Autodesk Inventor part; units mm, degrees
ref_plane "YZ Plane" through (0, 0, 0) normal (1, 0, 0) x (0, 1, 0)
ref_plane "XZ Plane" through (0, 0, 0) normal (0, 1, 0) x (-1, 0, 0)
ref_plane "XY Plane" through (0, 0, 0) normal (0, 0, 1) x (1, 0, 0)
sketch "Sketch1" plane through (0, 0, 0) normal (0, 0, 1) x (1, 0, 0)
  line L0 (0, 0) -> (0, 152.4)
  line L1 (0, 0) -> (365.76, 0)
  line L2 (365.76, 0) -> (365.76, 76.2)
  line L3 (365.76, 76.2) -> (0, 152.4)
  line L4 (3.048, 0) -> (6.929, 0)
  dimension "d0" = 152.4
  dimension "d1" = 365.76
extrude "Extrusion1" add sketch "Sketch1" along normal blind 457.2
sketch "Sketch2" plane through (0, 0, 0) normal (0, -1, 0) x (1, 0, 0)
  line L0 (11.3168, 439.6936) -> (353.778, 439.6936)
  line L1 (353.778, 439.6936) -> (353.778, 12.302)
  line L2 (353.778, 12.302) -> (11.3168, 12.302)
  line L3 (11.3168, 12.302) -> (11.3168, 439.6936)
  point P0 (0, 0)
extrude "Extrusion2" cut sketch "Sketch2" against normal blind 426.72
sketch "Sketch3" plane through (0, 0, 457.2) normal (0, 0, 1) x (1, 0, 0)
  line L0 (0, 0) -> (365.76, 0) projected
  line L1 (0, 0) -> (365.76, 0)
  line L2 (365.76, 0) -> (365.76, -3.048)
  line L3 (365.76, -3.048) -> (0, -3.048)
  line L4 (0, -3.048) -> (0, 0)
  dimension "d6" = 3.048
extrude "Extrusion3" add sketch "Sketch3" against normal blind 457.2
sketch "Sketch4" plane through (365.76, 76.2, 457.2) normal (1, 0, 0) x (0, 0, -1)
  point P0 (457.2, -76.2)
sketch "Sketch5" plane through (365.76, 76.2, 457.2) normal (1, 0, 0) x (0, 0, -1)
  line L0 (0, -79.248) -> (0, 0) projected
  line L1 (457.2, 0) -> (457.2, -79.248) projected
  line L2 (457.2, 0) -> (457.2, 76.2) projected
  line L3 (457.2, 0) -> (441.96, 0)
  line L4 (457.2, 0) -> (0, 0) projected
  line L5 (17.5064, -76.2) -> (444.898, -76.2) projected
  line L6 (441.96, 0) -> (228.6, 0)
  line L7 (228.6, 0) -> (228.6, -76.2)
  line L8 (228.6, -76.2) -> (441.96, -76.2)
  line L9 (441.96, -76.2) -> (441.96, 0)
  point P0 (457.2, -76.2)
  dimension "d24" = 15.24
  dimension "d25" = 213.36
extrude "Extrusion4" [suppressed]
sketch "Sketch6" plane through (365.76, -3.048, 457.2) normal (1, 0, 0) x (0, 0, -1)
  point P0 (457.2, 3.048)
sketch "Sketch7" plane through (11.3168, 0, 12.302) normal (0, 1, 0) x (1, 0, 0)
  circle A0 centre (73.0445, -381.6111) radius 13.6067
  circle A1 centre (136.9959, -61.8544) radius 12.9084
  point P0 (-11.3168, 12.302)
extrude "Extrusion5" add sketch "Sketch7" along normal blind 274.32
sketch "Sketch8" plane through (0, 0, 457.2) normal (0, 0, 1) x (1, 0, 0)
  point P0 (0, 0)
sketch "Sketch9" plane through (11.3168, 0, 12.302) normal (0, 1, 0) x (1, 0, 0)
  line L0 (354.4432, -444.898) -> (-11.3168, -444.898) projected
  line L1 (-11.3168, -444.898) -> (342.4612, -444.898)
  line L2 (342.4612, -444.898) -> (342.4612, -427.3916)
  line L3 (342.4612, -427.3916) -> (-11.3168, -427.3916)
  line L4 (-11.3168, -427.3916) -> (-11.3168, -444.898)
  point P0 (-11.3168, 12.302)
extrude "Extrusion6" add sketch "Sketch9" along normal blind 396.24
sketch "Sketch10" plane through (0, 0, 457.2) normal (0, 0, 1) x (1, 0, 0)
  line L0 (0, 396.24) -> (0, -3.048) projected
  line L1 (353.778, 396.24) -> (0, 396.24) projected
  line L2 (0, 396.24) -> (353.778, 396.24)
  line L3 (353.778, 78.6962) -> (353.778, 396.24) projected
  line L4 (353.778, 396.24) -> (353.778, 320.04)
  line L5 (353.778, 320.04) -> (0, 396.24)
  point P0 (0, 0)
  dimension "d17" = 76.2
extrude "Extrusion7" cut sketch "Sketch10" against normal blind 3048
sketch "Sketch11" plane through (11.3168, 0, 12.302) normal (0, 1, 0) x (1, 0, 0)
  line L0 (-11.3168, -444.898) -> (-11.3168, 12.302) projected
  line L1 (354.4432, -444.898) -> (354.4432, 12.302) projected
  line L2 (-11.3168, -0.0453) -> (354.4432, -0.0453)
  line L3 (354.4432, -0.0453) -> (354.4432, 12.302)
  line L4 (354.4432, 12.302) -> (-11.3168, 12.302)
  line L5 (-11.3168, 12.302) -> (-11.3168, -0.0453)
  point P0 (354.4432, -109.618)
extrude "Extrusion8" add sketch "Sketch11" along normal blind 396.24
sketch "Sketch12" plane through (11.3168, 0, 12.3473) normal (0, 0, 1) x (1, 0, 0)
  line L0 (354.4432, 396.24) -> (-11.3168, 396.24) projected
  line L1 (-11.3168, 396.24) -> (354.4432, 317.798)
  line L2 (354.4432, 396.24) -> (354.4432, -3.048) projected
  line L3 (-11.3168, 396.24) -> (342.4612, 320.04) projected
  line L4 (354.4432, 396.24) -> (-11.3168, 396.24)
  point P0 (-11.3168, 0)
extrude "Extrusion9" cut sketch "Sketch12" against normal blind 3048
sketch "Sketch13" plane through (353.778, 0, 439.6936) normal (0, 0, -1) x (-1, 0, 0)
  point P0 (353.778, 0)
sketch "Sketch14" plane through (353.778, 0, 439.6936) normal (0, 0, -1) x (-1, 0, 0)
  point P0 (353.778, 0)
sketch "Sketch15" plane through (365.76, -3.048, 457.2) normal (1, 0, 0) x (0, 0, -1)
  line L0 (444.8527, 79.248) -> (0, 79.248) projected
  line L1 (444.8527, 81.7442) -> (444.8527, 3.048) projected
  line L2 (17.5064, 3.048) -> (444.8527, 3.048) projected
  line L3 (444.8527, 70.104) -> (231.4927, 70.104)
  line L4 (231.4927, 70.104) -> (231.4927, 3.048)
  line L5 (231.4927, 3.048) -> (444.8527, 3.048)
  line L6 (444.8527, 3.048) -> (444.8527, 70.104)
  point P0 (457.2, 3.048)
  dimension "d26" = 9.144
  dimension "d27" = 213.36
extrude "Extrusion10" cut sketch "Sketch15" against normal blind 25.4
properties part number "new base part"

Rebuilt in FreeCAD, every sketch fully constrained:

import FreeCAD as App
import Part
import Sketcher

V = App.Vector
Q = App.Units.Quantity


def add_polygon(sketch, points):
    """Adds a closed chain of lines whose ends are joined by coincident constraints."""
    first, n = sketch.GeometryCount, len(points)
    for a, b in zip(points, points[1:] + points[:1]):
        sketch.addGeometry(Part.LineSegment(App.Vector(*a, 0), App.Vector(*b, 0)), False)
    for i in range(n):
        sketch.addConstraint(Sketcher.Constraint("Coincident", first + i, 2, first + (i + 1) % n, 1))

doc = App.newDocument("Part")
body = doc.addObject("PartDesign::Body", "Body")

# Sketch on XY plane
sketch1 = body.newObject("Sketcher::SketchObject", "Sketch")
sketch1.AttachmentSupport = (doc.getObject("XY_Plane"), [""])
sketch1.MapMode = "FlatFace"
add_polygon(sketch1, [(0, 152), (0, 0), (366, 0), (366, 76)])  # lines 0-3
sketch1.addConstraint([
    Sketcher.Constraint("Vertical", 0),
    Sketcher.Constraint("Horizontal", 1),
    Sketcher.Constraint("Vertical", 2),
    Sketcher.Constraint("Coincident", 0, 2, -1, 1),
    Sketcher.Constraint("DistanceY", 0, 2, 0, 1, Q("6 in")),
    Sketcher.Constraint("DistanceX", 1, 1, 1, 2, Q("14.4 in")),
    Sketcher.Constraint("DistanceY", 2, 1, 2, 2, Q("3 in")),
])
pad1 = body.newObject("PartDesign::Pad", "Pad")
pad1.Profile = sketch1
pad1.Length = Q("18 in")

# Sketch on XZ plane
sketch2 = body.newObject("Sketcher::SketchObject", "Sketch001")
sketch2.AttachmentSupport = (doc.getObject("XZ_Plane"), [""])
sketch2.MapMode = "FlatFace"
add_polygon(sketch2, [(354, 440), (11, 440), (11, 12), (354, 12)])  # lines 0-3
sketch2.addConstraint([
    Sketcher.Constraint("Horizontal", 0),
    Sketcher.Constraint("Vertical", 1),
    Sketcher.Constraint("Horizontal", 2),
    Sketcher.Constraint("Vertical", 3),
    Sketcher.Constraint("DistanceX", 0, 2, 0, 1, Q("342.4612 mm")),
    Sketcher.Constraint("DistanceY", 1, 2, 1, 1, Q("427.3916 mm")),
    Sketcher.Constraint("DistanceX", -1, 1, 0, 2, Q("11.3168 mm")),
    Sketcher.Constraint("DistanceY", -1, 1, 0, 2, Q("439.6936 mm")),
])
pocket1 = body.newObject("PartDesign::Pocket", "Pocket")
pocket1.Profile = sketch2
pocket1.Length = Q("16.8 in")

# Sketch on XY plane
sketch3 = body.newObject("Sketcher::SketchObject", "Sketch002")
sketch3.AttachmentSupport = (doc.getObject("XY_Plane"), [""])
sketch3.MapMode = "FlatFace"
sketch3.AttachmentOffset = App.Placement(V(0, 0, 18 * 25.4), App.Rotation())
add_polygon(sketch3, [(365.8, 0), (0, 0), (0, -3), (365.8, -3)])  # lines 0-3
sketch3.addConstraint([
    Sketcher.Constraint("Horizontal", 0),
    Sketcher.Constraint("Vertical", 1),
    Sketcher.Constraint("Horizontal", 2),
    Sketcher.Constraint("Vertical", 3),
    Sketcher.Constraint("Coincident", 0, 2, -1, 1),
    Sketcher.Constraint("DistanceY", 1, 2, 1, 1, Q("0.12 in")),
    Sketcher.Constraint("DistanceX", 0, 2, 0, 1, Q("14.4 in")),
])
pad2 = body.newObject("PartDesign::Pad", "Pad001")
pad2.Profile = sketch3
pad2.Length = Q("18 in")
pad2.Reversed = True

# Sketch on XZ plane
sketch4 = body.newObject("Sketcher::SketchObject", "Sketch003")
sketch4.AttachmentSupport = (doc.getObject("XZ_Plane"), [""])
sketch4.MapMode = "FlatFace"
sketch4.addGeometry([
    Part.Circle(V(84, 394, 0), V(0, 0, 1), 14),
    Part.Circle(V(148, 74, 0), V(0, 0, 1), 13),
], False)
sketch4.addConstraint([
    Sketcher.Constraint("Diameter", 0, Q("1.0714 in")),
    Sketcher.Constraint("Diameter", 1, Q("1.0164 in")),
    Sketcher.Constraint("DistanceX", -1, 1, 0, 3, Q("3.3213 in")),
    Sketcher.Constraint("DistanceY", -1, 1, 0, 3, Q("15.5084 in")),
    Sketcher.Constraint("DistanceX", -1, 1, 1, 3, Q("148.3127 mm")),
    Sketcher.Constraint("DistanceY", -1, 1, 1, 3, Q("74.1564 mm")),
])
pad3 = body.newObject("PartDesign::Pad", "Pad002")
pad3.Profile = sketch4
pad3.Length = Q("10.8 in")
pad3.Reversed = True

# Sketch on XZ plane
sketch5 = body.newObject("Sketcher::SketchObject", "Sketch004")
sketch5.AttachmentSupport = (doc.getObject("XZ_Plane"), [""])
sketch5.MapMode = "FlatFace"
add_polygon(sketch5, [(0, 457), (354, 457), (354, 440), (0, 440)])  # lines 0-3
sketch5.addConstraint([
    Sketcher.Constraint("Horizontal", 0),
    Sketcher.Constraint("Vertical", 1),
    Sketcher.Constraint("Horizontal", 2),
    Sketcher.Constraint("Vertical", 3),
    Sketcher.Constraint("PointOnObject", 2, 2, -2),
    Sketcher.Constraint("DistanceY", -1, 1, 0, 2, Q("18 in")),
    Sketcher.Constraint("DistanceX", 0, 1, 0, 2, Q("353.778 mm")),
    Sketcher.Constraint("DistanceY", 1, 2, 1, 1, Q("17.5064 mm")),
])
pad4 = body.newObject("PartDesign::Pad", "Pad003")
pad4.Profile = sketch5
pad4.Length = Q("15.6 in")
pad4.Reversed = True

# Sketch on XY plane
sketch6 = body.newObject("Sketcher::SketchObject", "Sketch005")
sketch6.AttachmentSupport = (doc.getObject("XY_Plane"), [""])
sketch6.MapMode = "FlatFace"
sketch6.AttachmentOffset = App.Placement(V(0, 0, 18 * 25.4), App.Rotation())
add_polygon(sketch6, [(354, 320), (354, 396), (0, 396)])  # lines 0-2
sketch6.addConstraint([
    Sketcher.Constraint("Vertical", 0),
    Sketcher.Constraint("Horizontal", 1),
    Sketcher.Constraint("PointOnObject", 1, 2, -2),
    Sketcher.Constraint("DistanceY", 0, 1, 0, 2, Q("3 in")),
    Sketcher.Constraint("DistanceY", -1, 1, 0, 2, Q("15.6 in")),
    Sketcher.Constraint("Distance", 2, Q("14.2477 in")),
])
pocket2 = body.newObject("PartDesign::Pocket", "Pocket001")
pocket2.Profile = sketch6
pocket2.Length = Q("120 in")

# Sketch on XZ plane
sketch7 = body.newObject("Sketcher::SketchObject", "Sketch006")
sketch7.AttachmentSupport = (doc.getObject("XZ_Plane"), [""])
sketch7.MapMode = "FlatFace"
add_polygon(sketch7, [(0, 0), (0, 12), (366, 12), (366, 0)])  # lines 0-3
sketch7.addConstraint([
    Sketcher.Constraint("Vertical", 0),
    Sketcher.Constraint("Horizontal", 1),
    Sketcher.Constraint("Vertical", 2),
    Sketcher.Constraint("Horizontal", 3),
    Sketcher.Constraint("Coincident", 3, 2, -1, 1),
    Sketcher.Constraint("DistanceX", 1, 1, 1, 2, Q("14.4 in")),
    Sketcher.Constraint("DistanceY", 0, 1, 0, 2, Q("12.3473 mm")),
])
pad5 = body.newObject("PartDesign::Pad", "Pad004")
pad5.Profile = sketch7
pad5.Length = Q("15.6 in")
pad5.Reversed = True

# Sketch on XY plane
sketch8 = body.newObject("Sketcher::SketchObject", "Sketch007")
sketch8.AttachmentSupport = (doc.getObject("XY_Plane"), [""])
sketch8.MapMode = "FlatFace"
sketch8.AttachmentOffset = App.Placement(V(0, 0, 12.3473), App.Rotation())
add_polygon(sketch8, [(366, 318), (366, 396), (0, 396)])  # lines 0-2
sketch8.addConstraint([
    Sketcher.Constraint("Vertical", 0),
    Sketcher.Constraint("Horizontal", 1),
    Sketcher.Constraint("PointOnObject", 1, 2, -2),
    Sketcher.Constraint("DistanceX", 1, 2, 1, 1, Q("14.4 in")),
    Sketcher.Constraint("DistanceY", -1, 1, 0, 2, Q("15.6 in")),
    Sketcher.Constraint("DistanceY", 0, 1, 0, 2, Q("78.442 mm")),
])
pocket3 = body.newObject("PartDesign::Pocket", "Pocket002")
pocket3.Profile = sketch8
pocket3.Length = Q("120 in")

# Sketch on YZ plane
sketch9 = body.newObject("Sketcher::SketchObject", "Sketch008")
sketch9.AttachmentSupport = (doc.getObject("YZ_Plane"), [""])
sketch9.MapMode = "FlatFace"
sketch9.AttachmentOffset = App.Placement(V(0, 0, 14.4 * 25.4), App.Rotation())
add_polygon(sketch9, [(0, 12), (67, 12), (67, 226), (0, 226)])  # lines 0-3
sketch9.addConstraint([
    Sketcher.Constraint("Horizontal", 0),
    Sketcher.Constraint("Vertical", 1),
    Sketcher.Constraint("Horizontal", 2),
    Sketcher.Constraint("Vertical", 3),
    Sketcher.Constraint("PointOnObject", 2, 2, -2),
    Sketcher.Constraint("DistanceY", 1, 1, 1, 2, Q("8.4 in")),
    Sketcher.Constraint("DistanceX", 0, 1, 0, 2, Q("2.64 in")),
    Sketcher.Constraint("DistanceY", -1, 1, 0, 2, Q("12.3473 mm")),
])
pocket4 = body.newObject("PartDesign::Pocket", "Pocket003")
pocket4.Profile = sketch9
pocket4.Length = Q("1 in")

doc.recompute()
